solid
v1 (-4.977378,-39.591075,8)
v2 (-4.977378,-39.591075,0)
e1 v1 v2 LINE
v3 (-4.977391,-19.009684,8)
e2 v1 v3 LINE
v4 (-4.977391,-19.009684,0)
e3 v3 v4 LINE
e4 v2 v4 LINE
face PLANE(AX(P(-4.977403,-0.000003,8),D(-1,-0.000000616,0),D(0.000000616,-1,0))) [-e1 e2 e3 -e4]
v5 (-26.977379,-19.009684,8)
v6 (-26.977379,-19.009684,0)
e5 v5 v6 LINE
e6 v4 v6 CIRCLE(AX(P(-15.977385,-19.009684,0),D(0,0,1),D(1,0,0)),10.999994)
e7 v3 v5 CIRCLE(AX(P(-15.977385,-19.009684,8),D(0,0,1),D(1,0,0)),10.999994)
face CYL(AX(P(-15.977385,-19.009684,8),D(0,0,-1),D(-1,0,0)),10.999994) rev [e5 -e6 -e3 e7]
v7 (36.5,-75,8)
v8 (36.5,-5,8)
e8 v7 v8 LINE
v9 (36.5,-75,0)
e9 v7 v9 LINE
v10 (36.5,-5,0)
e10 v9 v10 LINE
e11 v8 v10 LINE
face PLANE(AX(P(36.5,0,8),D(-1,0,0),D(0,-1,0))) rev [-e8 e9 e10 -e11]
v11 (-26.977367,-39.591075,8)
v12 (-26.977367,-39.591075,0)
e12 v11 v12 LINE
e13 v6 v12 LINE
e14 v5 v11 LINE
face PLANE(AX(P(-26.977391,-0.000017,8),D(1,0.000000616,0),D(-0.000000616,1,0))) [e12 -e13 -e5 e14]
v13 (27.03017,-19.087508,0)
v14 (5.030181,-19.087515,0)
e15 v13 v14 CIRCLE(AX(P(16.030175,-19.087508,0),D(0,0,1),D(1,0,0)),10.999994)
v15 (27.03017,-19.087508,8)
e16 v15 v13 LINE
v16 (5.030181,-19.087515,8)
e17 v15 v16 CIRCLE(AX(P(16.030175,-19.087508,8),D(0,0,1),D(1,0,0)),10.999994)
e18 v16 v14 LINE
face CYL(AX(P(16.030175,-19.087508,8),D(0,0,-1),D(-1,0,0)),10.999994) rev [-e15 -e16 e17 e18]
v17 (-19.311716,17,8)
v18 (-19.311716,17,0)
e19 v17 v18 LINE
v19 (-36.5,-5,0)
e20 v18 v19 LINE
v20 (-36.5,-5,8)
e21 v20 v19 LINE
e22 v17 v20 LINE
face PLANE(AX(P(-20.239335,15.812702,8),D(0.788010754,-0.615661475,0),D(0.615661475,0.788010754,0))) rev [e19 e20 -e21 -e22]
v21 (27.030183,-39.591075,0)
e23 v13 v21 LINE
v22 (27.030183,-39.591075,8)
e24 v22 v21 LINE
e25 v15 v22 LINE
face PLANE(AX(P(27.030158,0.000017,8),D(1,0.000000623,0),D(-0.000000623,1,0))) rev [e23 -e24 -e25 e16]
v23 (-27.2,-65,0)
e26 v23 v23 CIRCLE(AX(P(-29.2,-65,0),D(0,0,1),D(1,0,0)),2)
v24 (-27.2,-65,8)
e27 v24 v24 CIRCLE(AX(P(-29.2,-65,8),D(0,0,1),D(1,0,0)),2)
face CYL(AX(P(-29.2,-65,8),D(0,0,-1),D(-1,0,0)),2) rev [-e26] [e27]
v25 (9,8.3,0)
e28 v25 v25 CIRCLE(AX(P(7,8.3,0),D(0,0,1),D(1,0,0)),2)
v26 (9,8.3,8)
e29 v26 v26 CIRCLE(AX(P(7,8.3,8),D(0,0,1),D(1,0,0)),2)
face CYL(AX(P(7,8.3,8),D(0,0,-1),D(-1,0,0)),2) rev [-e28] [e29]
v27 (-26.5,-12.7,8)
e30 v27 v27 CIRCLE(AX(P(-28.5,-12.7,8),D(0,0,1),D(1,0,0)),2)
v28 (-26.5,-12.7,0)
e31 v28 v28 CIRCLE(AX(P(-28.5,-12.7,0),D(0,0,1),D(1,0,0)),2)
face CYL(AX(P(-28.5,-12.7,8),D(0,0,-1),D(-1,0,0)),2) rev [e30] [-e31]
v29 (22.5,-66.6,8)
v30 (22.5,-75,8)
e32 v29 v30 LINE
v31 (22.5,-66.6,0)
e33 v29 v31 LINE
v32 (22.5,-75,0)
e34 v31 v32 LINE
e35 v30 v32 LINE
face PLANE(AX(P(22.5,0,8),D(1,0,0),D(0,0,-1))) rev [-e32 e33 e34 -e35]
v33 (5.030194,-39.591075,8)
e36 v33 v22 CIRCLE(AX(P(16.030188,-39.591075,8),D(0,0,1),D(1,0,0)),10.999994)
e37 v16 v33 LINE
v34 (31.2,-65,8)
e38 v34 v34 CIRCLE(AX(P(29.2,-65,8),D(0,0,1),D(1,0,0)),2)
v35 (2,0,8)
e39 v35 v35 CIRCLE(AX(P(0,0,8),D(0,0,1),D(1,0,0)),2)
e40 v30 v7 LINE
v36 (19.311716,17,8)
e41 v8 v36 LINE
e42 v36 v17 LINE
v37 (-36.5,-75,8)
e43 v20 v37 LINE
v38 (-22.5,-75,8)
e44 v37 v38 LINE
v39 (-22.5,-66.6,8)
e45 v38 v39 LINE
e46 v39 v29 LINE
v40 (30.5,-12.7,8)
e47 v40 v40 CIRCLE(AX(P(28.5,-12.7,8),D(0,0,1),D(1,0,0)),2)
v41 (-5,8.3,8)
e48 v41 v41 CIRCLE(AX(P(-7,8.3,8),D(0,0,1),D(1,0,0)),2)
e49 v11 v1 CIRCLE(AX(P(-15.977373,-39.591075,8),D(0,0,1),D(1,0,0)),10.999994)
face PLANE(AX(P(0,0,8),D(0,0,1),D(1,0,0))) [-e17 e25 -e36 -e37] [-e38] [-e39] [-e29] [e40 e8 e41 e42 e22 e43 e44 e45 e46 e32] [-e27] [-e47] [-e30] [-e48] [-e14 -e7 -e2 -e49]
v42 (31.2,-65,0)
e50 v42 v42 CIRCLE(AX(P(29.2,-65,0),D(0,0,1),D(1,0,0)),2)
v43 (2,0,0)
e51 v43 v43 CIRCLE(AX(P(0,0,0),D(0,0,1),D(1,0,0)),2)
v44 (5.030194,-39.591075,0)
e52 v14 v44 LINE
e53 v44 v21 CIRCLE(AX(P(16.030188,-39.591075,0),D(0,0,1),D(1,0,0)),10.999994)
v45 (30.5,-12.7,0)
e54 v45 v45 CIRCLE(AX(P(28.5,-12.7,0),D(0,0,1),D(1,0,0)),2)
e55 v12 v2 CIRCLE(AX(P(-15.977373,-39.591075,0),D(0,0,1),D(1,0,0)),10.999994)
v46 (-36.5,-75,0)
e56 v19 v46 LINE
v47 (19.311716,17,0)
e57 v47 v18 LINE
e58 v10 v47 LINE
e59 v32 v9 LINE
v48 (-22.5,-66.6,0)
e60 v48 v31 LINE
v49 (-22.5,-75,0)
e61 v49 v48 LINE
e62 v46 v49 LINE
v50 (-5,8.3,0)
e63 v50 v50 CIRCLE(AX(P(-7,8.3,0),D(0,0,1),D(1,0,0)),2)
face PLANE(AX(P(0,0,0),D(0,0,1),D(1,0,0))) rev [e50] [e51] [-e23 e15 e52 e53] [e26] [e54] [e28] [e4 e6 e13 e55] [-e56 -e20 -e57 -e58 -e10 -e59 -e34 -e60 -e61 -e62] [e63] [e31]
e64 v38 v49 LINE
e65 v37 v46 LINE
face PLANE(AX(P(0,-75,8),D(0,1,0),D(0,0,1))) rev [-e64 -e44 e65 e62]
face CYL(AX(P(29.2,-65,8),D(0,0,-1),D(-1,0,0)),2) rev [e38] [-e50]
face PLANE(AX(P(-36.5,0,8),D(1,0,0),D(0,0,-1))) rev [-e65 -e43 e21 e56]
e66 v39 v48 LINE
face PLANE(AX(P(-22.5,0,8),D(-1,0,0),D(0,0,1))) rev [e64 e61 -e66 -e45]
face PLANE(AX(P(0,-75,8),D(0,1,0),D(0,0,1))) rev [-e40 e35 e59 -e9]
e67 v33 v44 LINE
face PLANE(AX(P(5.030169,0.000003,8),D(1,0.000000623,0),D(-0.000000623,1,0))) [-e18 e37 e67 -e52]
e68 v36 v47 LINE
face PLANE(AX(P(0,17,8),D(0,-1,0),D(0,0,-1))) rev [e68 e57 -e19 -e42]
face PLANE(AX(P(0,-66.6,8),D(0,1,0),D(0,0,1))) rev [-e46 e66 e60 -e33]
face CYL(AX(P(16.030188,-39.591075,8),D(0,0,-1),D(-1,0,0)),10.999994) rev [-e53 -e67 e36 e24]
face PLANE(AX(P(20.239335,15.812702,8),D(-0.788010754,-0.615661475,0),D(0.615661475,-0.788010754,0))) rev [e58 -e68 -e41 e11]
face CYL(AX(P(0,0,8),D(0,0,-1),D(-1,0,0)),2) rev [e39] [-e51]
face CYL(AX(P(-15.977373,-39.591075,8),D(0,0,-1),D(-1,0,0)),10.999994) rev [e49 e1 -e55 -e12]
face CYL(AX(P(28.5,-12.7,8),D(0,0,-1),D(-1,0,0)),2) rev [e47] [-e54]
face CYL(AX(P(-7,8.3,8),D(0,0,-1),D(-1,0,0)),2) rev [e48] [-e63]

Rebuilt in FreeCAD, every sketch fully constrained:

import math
import FreeCAD as App
import Part
import Sketcher

V = App.Vector
Q = App.Units.Quantity

doc = App.newDocument("Part")
body = doc.addObject("PartDesign::Body", "Body")

# Sketch on XY plane
sketch1 = body.newObject("Sketcher::SketchObject", "Sketch")
sketch1.AttachmentSupport = (doc.getObject("XY_Plane"), [""])
sketch1.MapMode = "FlatFace"
sketch1.addGeometry([
    Part.LineSegment(V(36.5, -75, 0), V(36.5, -5, 0)),  # 0
    Part.LineSegment(V(36.5, -5, 0), V(19.3, 17, 0)),  # 1
    Part.LineSegment(V(19.3, 17, 0), V(-19.3, 17, 0)),  # 2
    Part.LineSegment(V(-19.3, 17, 0), V(-36.5, -5, 0)),  # 3
    Part.LineSegment(V(-36.5, -5, 0), V(-36.5, -75, 0)),  # 4
    Part.LineSegment(V(-36.5, -75, 0), V(-22.5, -75, 0)),  # 5
    Part.LineSegment(V(-22.5, -75, 0), V(-22.5, -66.6, 0)),  # 6
    Part.LineSegment(V(-22.5, -66.6, 0), V(22.5, -66.6, 0)),  # 7
    Part.LineSegment(V(22.5, -66.6, 0), V(22.5, -75, 0)),  # 8
    Part.LineSegment(V(22.5, -75, 0), V(36.5, -75, 0)),  # 9
    Part.Circle(V(-29.2, -65, 0), V(0, 0, 1), 2),  # 10
    Part.ArcOfCircle(Part.Circle(V(-16, -39.6, 0), V(0, 0, 1), 11), math.radians(180), math.radians(360)),  # 11
    Part.LineSegment(V(-27, -39.6, 0), V(-27, -19, 0)),  # 12
    Part.ArcOfCircle(Part.Circle(V(-16, -19, 0), V(0, 0, 1), 11), math.radians(0), math.radians(180)),  # 13
    Part.LineSegment(V(-5, -19, 0), V(-5, -39.6, 0)),  # 14
    Part.Circle(V(29.2, -65, 0), V(0, 0, 1), 2),  # 15
    Part.ArcOfCircle(Part.Circle(V(16, -39.6, 0), V(0, 0, 1), 11), math.radians(180), math.radians(360)),  # 16
    Part.LineSegment(V(5, -39.6, 0), V(5, -19.1, 0)),  # 17
    Part.ArcOfCircle(Part.Circle(V(16, -19.1, 0), V(0, 0, 1), 11), math.radians(0), math.radians(180)),  # 18
    Part.LineSegment(V(27, -19.1, 0), V(27, -39.6, 0)),  # 19
    Part.Circle(V(-28.5, -12.7, 0), V(0, 0, 1), 2),  # 20
    Part.Circle(V(-7, 8.3, 0), V(0, 0, 1), 2),  # 21
    Part.Circle(V(28.5, -12.7, 0), V(0, 0, 1), 2),  # 22
    Part.Circle(V(0, 0, 0), V(0, 0, 1), 2),  # 23
    Part.Circle(V(7, 8.3, 0), V(0, 0, 1), 2),  # 24
], False)
sketch1.addConstraint([
    Sketcher.Constraint("Coincident", 0, 2, 1, 1),
    Sketcher.Constraint("Coincident", 1, 2, 2, 1),
    Sketcher.Constraint("Coincident", 2, 2, 3, 1),
    Sketcher.Constraint("Coincident", 3, 2, 4, 1),
    Sketcher.Constraint("Coincident", 4, 2, 5, 1),
    Sketcher.Constraint("Coincident", 5, 2, 6, 1),
    Sketcher.Constraint("Coincident", 6, 2, 7, 1),
    Sketcher.Constraint("Coincident", 7, 2, 8, 1),
    Sketcher.Constraint("Coincident", 8, 2, 9, 1),
    Sketcher.Constraint("Coincident", 9, 2, 0, 1),
    Sketcher.Constraint("Tangent", 11, 1, 12, 1),
    Sketcher.Constraint("Tangent", 12, 2, 13, 2),
    Sketcher.Constraint("Tangent", 13, 1, 14, 1),
    Sketcher.Constraint("Tangent", 14, 2, 11, 2),
    Sketcher.Constraint("Tangent", 16, 1, 17, 1),
    Sketcher.Constraint("Tangent", 17, 2, 18, 2),
    Sketcher.Constraint("Tangent", 18, 1, 19, 1),
    Sketcher.Constraint("Tangent", 19, 2, 16, 2),
    Sketcher.Constraint("Vertical", 0),
    Sketcher.Constraint("Horizontal", 2),
    Sketcher.Constraint("Vertical", 4),
    Sketcher.Constraint("Horizontal", 5),
    Sketcher.Constraint("Vertical", 6),
    Sketcher.Constraint("Horizontal", 7),
    Sketcher.Constraint("Vertical", 8),
    Sketcher.Constraint("Horizontal", 9),
    Sketcher.Constraint("Coincident", 23, 3, -1, 1),
    Sketcher.Constraint("Equal", 11, 13),
    Sketcher.Constraint("Equal", 10, 15),
    Sketcher.Constraint("Equal", 13, 16),
    Sketcher.Constraint("Equal", 16, 18),
    Sketcher.Constraint("Equal", 15, 20),
    Sketcher.Constraint("Equal", 20, 21),
    Sketcher.Constraint("Equal", 21, 22),
    Sketcher.Constraint("Equal", 22, 23),
    Sketcher.Constraint("Equal", 23, 24),
    Sketcher.Constraint("Symmetric", 10, 3, 15, 3, -2),
    Sketcher.Constraint("Symmetric", 20, 3, 22, 3, -2),
    Sketcher.Constraint("Symmetric", 21, 3, 24, 3, -2),
    Sketcher.Constraint("Symmetric", 0, 2, 3, 2, -2),
    Sketcher.Constraint("Symmetric", 5, 2, 8, 2, -2),
    Sketcher.Constraint("Parallel", 14, 17),
    Sketcher.Constraint("Horizontal", 11, 3, 16, 3),
    Sketcher.Constraint("Horizontal", 16, 3, 11, 1),
    Sketcher.Constraint("Equal", 1, 3),
    Sketcher.Constraint("Diameter", 10, 4.0),
    Sketcher.Constraint("DistanceX", 5, 1, 5, 2, 14.0),
    Sketcher.Constraint("DistanceX", 7, 1, 7, 2, 45.0),
    Sketcher.Constraint("DistanceY", 0, 1, 0, 2, 70.0),
    Sketcher.Constraint("Angle", 1, Q("128 deg")),
    Sketcher.Constraint("DistanceY", 6, 1, 6, 2, 8.4),
    Sketcher.Constraint("DistanceY", 10, 3, -1, 1, 65.0),
    Sketcher.Constraint("DistanceX", 21, 3, -1, 1, 7.0),
    Sketcher.Constraint("DistanceY", 0, 2, -1, 1, 5.0),
    Sketcher.Constraint("DistanceY", -1, 1, 1, 2, 17.0),
    Sketcher.Constraint("DistanceY", 20, 3, 21, 3, 21.0),
    Sketcher.Constraint("DistanceX", 22, 3, 0, 2, 8.0),
    Sketcher.Constraint("DistanceX", 10, 3, -1, 1, 29.2),
    Sketcher.Constraint("DistanceY", 20, 3, -1, 1, 12.7),
    Sketcher.Constraint("Radius", 11, 10.999994),
    Sketcher.Constraint("Distance", 12, 20.581391),
    Sketcher.Constraint("DistanceX", -1, 1, 16, 3, 16.030188),
    Sketcher.Constraint("DistanceX", 12, 2, -1, 1, 26.977379),
    Sketcher.Constraint("Distance", 17, 20.503567),
    Sketcher.Constraint("DistanceY", 11, 3, -1, 1, 39.591075),
])
pad1 = body.newObject("PartDesign::Pad", "Pad")
pad1.Profile = sketch1
pad1.Length = 8

doc.recompute()
